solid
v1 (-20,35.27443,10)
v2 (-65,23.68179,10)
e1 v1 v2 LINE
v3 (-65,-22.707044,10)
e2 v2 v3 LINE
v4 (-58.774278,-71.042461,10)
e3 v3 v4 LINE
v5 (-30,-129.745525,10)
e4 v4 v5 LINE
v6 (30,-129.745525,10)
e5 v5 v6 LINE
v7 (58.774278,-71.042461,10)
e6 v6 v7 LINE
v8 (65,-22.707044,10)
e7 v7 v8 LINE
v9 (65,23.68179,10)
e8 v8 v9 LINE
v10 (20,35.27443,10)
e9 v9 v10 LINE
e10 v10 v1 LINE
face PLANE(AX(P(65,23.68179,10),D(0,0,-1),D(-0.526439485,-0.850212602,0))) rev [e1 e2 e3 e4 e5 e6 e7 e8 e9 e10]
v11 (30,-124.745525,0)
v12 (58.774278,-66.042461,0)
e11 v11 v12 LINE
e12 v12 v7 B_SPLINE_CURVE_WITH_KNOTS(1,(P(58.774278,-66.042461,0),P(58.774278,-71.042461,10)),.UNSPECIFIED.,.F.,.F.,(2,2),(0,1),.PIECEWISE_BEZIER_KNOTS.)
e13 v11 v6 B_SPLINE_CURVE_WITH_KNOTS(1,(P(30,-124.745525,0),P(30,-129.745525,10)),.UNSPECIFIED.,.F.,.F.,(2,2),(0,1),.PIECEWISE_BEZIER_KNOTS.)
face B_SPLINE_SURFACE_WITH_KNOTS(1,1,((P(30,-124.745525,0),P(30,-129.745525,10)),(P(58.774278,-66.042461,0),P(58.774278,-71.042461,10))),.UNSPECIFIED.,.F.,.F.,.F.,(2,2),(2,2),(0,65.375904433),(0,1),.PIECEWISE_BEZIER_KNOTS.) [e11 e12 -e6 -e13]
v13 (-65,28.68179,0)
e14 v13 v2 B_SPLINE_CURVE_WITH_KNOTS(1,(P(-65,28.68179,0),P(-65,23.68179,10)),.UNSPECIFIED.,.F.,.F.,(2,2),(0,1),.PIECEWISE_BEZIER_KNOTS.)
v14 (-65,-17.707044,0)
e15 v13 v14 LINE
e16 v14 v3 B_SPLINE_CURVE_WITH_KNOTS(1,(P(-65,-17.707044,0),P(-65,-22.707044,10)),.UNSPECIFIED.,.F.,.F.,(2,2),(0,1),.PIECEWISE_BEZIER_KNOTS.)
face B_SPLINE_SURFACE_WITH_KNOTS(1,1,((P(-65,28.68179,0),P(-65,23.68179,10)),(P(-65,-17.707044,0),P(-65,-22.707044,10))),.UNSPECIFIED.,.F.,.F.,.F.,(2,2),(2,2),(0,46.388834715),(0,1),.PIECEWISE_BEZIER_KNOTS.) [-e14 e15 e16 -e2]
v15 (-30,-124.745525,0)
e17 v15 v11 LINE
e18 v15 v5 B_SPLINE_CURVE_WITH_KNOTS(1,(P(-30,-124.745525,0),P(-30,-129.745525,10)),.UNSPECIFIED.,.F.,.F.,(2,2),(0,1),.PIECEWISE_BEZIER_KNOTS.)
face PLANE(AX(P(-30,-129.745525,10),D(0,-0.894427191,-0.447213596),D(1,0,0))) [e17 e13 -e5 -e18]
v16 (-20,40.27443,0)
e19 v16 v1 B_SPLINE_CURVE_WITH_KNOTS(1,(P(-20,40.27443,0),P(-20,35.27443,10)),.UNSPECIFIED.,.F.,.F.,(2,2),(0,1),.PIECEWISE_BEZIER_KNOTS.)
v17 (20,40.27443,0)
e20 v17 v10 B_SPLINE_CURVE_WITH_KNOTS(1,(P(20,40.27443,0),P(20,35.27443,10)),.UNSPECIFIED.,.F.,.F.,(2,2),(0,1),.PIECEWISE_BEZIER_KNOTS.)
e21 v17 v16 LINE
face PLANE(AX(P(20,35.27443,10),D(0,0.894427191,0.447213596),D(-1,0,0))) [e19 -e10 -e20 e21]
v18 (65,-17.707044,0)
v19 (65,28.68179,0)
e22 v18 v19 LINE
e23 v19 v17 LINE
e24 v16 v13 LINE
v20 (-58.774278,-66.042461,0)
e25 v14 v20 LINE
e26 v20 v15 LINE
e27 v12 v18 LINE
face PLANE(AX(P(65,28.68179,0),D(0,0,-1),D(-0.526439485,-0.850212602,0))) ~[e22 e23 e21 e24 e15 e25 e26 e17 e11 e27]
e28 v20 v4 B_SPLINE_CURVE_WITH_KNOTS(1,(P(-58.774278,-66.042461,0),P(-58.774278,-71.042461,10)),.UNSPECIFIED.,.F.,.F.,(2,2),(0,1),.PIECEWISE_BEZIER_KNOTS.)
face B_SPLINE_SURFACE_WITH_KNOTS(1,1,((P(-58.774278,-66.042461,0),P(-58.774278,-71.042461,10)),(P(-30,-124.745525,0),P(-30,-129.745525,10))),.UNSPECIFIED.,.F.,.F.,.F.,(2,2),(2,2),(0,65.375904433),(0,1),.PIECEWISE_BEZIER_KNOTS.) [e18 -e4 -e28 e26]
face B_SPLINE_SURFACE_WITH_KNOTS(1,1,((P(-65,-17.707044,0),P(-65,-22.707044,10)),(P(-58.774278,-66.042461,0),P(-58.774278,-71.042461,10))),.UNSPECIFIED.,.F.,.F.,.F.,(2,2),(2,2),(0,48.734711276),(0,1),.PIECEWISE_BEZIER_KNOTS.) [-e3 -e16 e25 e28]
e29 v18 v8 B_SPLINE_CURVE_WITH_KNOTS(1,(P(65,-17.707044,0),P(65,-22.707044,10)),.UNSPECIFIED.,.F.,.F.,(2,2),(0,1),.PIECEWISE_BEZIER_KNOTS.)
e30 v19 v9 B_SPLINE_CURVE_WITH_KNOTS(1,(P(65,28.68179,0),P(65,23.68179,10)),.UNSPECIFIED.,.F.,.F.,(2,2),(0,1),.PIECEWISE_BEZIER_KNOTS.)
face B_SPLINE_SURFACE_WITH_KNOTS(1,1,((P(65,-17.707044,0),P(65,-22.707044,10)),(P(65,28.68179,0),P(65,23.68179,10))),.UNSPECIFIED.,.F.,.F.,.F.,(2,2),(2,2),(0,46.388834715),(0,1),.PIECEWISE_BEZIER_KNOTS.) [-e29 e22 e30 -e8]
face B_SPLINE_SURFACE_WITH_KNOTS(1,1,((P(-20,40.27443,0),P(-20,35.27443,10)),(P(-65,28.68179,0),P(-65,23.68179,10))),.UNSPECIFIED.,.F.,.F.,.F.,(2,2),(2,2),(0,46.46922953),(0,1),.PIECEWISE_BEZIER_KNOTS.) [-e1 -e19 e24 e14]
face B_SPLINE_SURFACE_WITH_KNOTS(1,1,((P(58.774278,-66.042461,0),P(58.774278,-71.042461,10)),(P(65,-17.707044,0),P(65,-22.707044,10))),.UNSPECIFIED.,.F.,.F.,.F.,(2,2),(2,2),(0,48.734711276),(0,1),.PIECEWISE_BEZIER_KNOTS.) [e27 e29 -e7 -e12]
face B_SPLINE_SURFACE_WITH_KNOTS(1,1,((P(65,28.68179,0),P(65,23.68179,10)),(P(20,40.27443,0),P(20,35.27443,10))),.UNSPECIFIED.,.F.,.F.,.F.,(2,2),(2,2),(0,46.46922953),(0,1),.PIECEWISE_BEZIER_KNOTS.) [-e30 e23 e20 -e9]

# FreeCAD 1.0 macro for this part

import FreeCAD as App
import Part
import Sketcher


def add_polygon(sketch, points):
    """Adds a closed chain of lines whose ends are joined by coincident constraints."""
    first, n = sketch.GeometryCount, len(points)
    for a, b in zip(points, points[1:] + points[:1]):
        sketch.addGeometry(Part.LineSegment(App.Vector(*a, 0), App.Vector(*b, 0)), False)
    for i in range(n):
        sketch.addConstraint(Sketcher.Constraint("Coincident", first + i, 2, first + (i + 1) % n, 1))

doc = App.newDocument("Part")
body = doc.addObject("PartDesign::Body", "Body")

# Sketch on XY plane
sketch1 = body.newObject("Sketcher::SketchObject", "Sketch")
sketch1.AttachmentSupport = (doc.getObject("XY_Plane"), [""])
sketch1.MapMode = "FlatFace"
add_polygon(sketch1, [(65, 29), (20, 40), (-20, 40), (-65, 29), (-65, -18), (-59, -66), (-30, -125), (30, -125), (59, -66), (65, -18)])  # lines 0-9
sketch1.addConstraint([
    Sketcher.Constraint("Horizontal", 1),
    Sketcher.Constraint("Vertical", 3),
    Sketcher.Constraint("Horizontal", 6),
    Sketcher.Constraint("Vertical", 9),
    Sketcher.Constraint("Symmetric", 4, 2, 7, 2, -2),
    Sketcher.Constraint("Symmetric", 3, 2, 8, 2, -2),
    Sketcher.Constraint("Horizontal", 2, 2, 9, 2),
    Sketcher.Constraint("Equal", 0, 2),
    Sketcher.Constraint("Equal", 5, 7),
    Sketcher.Constraint("DistanceX", 1, 2, 1, 1, 40.0),
    Sketcher.Constraint("DistanceX", 6, 1, 6, 2, 60.0),
    Sketcher.Constraint("DistanceX", 2, 2, -1, 1, 65.0),
    Sketcher.Constraint("Distance", 0, 46.46923),
    Sketcher.Constraint("Distance", 4, 48.734711),
    Sketcher.Constraint("DistanceY", 3, 2, 3, 1, 46.388835),
    Sketcher.Constraint("DistanceY", -1, 1, 0, 2, 40.27443),
    Sketcher.Constraint("DistanceY", 4, 2, -1, 1, 66.042461),
    Sketcher.Constraint("DistanceY", 5, 2, 3, 2, 107.038481),
])

# Sketch on XY plane
sketch2 = body.newObject("Sketcher::SketchObject", "Sketch001")
sketch2.AttachmentSupport = (doc.getObject("XY_Plane"), [""])
sketch2.MapMode = "FlatFace"
sketch2.AttachmentOffset = App.Placement(App.Vector(0, 0, 10), App.Rotation())
add_polygon(sketch2, [(59, -71), (65, -23), (65, 24), (20, 35), (-20, 35), (-65, 24), (-65, -23), (-59, -71), (-30, -130), (30, -130)])  # lines 0-9
sketch2.addConstraint([
    Sketcher.Constraint("Vertical", 1),
    Sketcher.Constraint("Horizontal", 3),
    Sketcher.Constraint("Vertical", 5),
    Sketcher.Constraint("Horizontal", 8),
    Sketcher.Constraint("Symmetric", 1, 2, 4, 2, -2),
    Sketcher.Constraint("Symmetric", 6, 2, 9, 2, -2),
    Sketcher.Constraint("Horizontal", 0, 2, 5, 2),
    Sketcher.Constraint("Equal", 2, 4),
    Sketcher.Constraint("Equal", 7, 9),
    Sketcher.Constraint("DistanceX", 3, 2, 3, 1, 40.0),
    Sketcher.Constraint("DistanceX", 8, 1, 8, 2, 60.0),
    Sketcher.Constraint("DistanceX", -1, 1, 0, 2, 65.0),
    Sketcher.Constraint("Distance", 0, 48.734711),
    Sketcher.Constraint("Distance", 2, 46.46923),
    Sketcher.Constraint("DistanceY", 1, 1, 1, 2, 46.388835),
    Sketcher.Constraint("DistanceY", -1, 1, 1, 2, 23.68179),
    Sketcher.Constraint("DistanceY", 6, 2, -1, 1, 71.042461),
    Sketcher.Constraint("DistanceY", 7, 2, 5, 2, 107.038481),
])

additiveloft = body.newObject("PartDesign::AdditiveLoft", "AdditiveLoft")
additiveloft.Profile = sketch1
additiveloft.Sections = [sketch2]
body2 = doc.addObject("PartDesign::Body", "Body001")
doc.recompute()

body2.BaseFeature = body
doc.recompute()

mirroring = doc.addObject("Part::Mirroring", "Mirroring")
mirroring.Source = body
mirroring.Base = App.Vector(0, 0, 0)
mirroring.Normal = App.Vector(1, 0, 0)
body3 = doc.addObject("PartDesign::Body", "Body002")
body3.BaseFeature = mirroring
boolean = body2.newObject("PartDesign::Boolean", "Boolean")
boolean.Type = "Fuse"
boolean.addObjects([body3])
doc.recompute()
mirroring.Visibility = False

doc.recompute()
